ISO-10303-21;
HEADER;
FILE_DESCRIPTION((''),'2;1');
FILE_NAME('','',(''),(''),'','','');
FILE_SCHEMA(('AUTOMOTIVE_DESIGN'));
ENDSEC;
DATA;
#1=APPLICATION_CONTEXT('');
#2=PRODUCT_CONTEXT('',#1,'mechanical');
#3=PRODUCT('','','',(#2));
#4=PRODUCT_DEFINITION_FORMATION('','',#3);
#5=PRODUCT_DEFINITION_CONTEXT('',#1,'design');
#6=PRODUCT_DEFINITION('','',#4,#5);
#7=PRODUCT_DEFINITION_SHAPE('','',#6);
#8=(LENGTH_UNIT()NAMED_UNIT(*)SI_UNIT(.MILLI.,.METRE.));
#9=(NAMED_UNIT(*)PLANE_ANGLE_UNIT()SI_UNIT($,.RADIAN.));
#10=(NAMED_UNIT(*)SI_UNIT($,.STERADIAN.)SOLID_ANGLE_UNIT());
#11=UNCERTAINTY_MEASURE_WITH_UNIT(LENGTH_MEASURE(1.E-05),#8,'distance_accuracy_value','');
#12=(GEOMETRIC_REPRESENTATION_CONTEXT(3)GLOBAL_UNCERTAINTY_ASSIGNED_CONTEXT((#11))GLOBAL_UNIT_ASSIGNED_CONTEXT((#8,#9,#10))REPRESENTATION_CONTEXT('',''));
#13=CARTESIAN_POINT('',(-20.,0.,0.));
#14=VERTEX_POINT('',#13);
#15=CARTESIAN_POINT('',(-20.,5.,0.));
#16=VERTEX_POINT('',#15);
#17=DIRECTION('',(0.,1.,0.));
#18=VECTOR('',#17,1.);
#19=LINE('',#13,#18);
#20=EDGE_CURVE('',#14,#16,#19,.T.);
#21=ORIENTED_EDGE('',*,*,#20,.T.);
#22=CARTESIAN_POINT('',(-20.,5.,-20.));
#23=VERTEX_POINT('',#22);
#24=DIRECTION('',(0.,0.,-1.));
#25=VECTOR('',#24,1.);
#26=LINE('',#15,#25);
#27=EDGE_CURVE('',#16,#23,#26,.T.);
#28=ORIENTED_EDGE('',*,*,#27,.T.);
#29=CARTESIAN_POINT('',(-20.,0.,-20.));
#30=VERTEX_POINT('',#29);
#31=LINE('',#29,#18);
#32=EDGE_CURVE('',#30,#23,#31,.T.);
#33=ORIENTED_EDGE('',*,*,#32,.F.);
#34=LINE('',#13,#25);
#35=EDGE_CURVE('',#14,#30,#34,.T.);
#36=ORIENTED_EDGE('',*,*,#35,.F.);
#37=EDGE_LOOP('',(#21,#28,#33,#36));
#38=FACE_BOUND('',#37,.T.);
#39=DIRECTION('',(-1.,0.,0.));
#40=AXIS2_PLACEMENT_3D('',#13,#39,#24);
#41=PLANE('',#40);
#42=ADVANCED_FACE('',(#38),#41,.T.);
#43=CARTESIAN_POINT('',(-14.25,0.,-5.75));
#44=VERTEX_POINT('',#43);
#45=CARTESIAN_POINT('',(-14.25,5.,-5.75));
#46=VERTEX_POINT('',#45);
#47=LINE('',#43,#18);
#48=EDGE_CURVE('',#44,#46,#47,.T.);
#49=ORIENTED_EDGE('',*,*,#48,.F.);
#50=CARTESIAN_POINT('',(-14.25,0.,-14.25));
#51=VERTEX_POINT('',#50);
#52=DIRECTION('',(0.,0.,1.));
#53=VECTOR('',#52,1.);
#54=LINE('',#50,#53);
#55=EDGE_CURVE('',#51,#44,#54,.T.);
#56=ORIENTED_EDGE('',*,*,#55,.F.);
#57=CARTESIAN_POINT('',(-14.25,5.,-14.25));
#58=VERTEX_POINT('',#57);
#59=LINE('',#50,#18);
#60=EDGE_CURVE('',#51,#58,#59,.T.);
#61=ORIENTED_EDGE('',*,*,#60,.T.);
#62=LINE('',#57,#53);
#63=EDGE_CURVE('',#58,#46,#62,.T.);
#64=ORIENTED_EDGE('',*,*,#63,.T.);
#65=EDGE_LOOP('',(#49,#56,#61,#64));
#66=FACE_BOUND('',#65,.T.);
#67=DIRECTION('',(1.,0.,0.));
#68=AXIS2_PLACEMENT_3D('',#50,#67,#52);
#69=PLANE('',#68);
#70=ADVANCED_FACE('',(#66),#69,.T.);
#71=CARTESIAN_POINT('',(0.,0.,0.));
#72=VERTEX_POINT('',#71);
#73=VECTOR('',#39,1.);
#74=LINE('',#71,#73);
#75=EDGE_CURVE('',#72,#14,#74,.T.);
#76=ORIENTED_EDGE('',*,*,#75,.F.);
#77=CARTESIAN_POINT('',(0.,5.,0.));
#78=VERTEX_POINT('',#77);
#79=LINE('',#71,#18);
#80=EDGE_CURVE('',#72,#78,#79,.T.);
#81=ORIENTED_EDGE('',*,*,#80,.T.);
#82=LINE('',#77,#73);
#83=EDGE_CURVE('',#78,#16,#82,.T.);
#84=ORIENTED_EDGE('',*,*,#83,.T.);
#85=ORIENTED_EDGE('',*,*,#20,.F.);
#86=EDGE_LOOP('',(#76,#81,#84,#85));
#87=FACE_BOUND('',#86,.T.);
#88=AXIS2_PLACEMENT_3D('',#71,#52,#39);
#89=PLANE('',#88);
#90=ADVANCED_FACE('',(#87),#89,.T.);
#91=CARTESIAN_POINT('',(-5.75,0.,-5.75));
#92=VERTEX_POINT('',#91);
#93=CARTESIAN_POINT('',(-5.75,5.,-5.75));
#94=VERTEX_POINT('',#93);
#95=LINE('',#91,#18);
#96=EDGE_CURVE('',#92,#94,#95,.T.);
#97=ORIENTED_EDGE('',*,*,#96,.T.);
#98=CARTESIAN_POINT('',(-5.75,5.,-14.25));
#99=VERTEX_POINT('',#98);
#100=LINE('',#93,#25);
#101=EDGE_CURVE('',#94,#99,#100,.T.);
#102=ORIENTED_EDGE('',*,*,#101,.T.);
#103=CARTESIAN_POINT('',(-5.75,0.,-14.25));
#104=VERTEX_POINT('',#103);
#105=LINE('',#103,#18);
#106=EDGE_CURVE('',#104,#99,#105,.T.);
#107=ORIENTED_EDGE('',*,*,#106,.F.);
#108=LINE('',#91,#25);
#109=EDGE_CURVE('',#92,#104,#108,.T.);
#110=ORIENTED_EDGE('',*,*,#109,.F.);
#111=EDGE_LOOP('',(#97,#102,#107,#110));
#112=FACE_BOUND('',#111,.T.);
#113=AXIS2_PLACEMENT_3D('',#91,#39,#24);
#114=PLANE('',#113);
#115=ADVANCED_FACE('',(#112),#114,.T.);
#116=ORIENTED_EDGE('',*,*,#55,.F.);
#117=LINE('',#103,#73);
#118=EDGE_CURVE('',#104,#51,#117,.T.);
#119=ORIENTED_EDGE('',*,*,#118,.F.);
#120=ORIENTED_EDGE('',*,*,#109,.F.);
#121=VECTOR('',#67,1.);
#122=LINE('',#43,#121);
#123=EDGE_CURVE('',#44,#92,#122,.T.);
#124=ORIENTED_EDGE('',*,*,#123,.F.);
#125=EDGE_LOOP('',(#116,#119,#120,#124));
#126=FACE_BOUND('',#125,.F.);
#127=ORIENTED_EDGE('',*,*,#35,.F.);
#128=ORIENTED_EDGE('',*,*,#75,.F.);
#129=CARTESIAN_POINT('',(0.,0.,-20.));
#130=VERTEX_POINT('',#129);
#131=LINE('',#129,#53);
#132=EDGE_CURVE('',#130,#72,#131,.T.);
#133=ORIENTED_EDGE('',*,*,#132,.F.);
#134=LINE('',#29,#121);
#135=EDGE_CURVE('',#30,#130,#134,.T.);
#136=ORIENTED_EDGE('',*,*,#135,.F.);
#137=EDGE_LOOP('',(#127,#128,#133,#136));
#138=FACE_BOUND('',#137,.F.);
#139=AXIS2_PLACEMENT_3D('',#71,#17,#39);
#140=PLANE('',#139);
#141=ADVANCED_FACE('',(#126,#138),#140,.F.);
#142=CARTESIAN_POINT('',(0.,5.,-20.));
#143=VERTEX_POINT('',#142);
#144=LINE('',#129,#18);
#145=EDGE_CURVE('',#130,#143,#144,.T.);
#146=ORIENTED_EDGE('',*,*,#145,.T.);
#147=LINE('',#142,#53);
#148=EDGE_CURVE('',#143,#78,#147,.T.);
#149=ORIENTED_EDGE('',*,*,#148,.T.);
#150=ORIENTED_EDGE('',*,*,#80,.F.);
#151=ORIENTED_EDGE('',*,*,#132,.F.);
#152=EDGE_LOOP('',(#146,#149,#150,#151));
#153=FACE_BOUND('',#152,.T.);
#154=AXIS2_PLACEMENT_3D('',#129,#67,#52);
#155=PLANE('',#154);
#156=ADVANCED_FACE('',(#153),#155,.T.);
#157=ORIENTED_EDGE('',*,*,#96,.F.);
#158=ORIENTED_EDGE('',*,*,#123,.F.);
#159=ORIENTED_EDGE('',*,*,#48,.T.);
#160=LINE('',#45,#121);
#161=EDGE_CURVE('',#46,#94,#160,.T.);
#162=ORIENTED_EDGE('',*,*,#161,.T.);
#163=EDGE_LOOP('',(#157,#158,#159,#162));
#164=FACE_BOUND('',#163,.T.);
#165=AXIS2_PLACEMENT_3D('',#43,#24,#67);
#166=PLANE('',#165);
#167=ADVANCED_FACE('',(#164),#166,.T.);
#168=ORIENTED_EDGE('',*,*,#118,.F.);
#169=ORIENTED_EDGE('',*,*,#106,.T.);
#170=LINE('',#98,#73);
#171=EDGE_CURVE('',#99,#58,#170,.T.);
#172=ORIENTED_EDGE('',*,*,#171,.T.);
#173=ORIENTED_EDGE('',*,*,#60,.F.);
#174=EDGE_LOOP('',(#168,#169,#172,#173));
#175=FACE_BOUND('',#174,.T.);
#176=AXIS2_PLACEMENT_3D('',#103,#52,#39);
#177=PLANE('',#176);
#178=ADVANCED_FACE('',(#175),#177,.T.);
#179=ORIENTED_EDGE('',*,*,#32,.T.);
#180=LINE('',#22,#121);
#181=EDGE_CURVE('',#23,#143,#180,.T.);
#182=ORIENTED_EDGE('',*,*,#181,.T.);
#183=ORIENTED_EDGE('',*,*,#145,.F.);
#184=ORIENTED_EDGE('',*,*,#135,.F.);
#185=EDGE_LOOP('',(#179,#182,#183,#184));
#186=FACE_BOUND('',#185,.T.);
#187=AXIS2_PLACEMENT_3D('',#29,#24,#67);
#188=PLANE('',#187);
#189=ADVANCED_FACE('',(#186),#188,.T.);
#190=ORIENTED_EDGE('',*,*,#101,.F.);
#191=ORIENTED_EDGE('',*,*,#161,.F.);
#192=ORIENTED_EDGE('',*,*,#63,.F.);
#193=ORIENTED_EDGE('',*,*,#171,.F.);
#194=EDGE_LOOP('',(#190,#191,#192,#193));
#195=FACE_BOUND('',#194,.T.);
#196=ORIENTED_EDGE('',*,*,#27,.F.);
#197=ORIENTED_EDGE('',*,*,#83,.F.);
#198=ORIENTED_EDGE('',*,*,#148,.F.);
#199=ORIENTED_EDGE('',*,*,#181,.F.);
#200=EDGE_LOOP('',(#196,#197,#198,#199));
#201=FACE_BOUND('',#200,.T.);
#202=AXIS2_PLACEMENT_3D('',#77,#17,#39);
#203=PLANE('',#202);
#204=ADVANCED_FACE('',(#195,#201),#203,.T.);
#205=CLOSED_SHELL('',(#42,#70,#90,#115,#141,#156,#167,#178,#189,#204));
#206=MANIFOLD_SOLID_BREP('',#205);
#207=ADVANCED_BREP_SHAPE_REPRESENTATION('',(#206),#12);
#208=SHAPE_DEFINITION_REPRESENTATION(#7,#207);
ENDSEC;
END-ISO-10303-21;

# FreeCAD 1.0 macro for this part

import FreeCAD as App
import Part
import Sketcher
from FreeCAD import Vector

doc = App.newDocument("Part")
body = doc.addObject("PartDesign::Body", "Body")

# Sketch on XZ plane
sketch1 = body.newObject("Sketcher::SketchObject", "Sketch")
sketch1.AttachmentSupport = (doc.getObject("XZ_Plane"), [""])
sketch1.MapMode = "FlatFace"
sketch1.addGeometry([
    Part.LineSegment(Vector(-20, 0, 0), Vector(0, 0, 0)),  # 0
    Part.LineSegment(Vector(0, 0, 0), Vector(0, -20, 0)),  # 1
    Part.LineSegment(Vector(0, -20, 0), Vector(-20, -20, 0)),  # 2
    Part.LineSegment(Vector(-20, -20, 0), Vector(-20, 0, 0)),  # 3
    Part.LineSegment(Vector(-6, -6, 0), Vector(-14, -6, 0)),  # 4
    Part.LineSegment(Vector(-14, -6, 0), Vector(-14, -14, 0)),  # 5
    Part.LineSegment(Vector(-14, -14, 0), Vector(-6, -14, 0)),  # 6
    Part.LineSegment(Vector(-6, -14, 0), Vector(-6, -6, 0)),  # 7
], False)
sketch1.addConstraint([
    Sketcher.Constraint("Coincident", 0, 2, 1, 1),
    Sketcher.Constraint("Coincident", 1, 2, 2, 1),
    Sketcher.Constraint("Coincident", 2, 2, 3, 1),
    Sketcher.Constraint("Coincident", 3, 2, 0, 1),
    Sketcher.Constraint("Coincident", 4, 2, 5, 1),
    Sketcher.Constraint("Coincident", 5, 2, 6, 1),
    Sketcher.Constraint("Coincident", 6, 2, 7, 1),
    Sketcher.Constraint("Coincident", 7, 2, 4, 1),
    Sketcher.Constraint("Horizontal", 0),
    Sketcher.Constraint("Vertical", 1),
    Sketcher.Constraint("Horizontal", 2),
    Sketcher.Constraint("Vertical", 3),
    Sketcher.Constraint("Horizontal", 4),
    Sketcher.Constraint("Vertical", 5),
    Sketcher.Constraint("Horizontal", 6),
    Sketcher.Constraint("Vertical", 7),
    Sketcher.Constraint("Coincident", 0, 2, -1, 1),
    Sketcher.Constraint("Equal", 2, 1),
    Sketcher.Constraint("Equal", 6, 5),
    Sketcher.Constraint("DistanceX", 0, 1, 0, 2, 20.0),
    Sketcher.Constraint("DistanceX", 4, 2, 4, 1, 8.5),
    Sketcher.Constraint("DistanceX", 4, 2, -1, 1, 14.25),
    Sketcher.Constraint("DistanceY", 4, 2, -1, 1, 5.75),
])
pad1 = body.newObject("PartDesign::Pad", "Pad")
pad1.Profile = sketch1
pad1.Length = 5
pad1.Reversed = True

doc.recompute()
